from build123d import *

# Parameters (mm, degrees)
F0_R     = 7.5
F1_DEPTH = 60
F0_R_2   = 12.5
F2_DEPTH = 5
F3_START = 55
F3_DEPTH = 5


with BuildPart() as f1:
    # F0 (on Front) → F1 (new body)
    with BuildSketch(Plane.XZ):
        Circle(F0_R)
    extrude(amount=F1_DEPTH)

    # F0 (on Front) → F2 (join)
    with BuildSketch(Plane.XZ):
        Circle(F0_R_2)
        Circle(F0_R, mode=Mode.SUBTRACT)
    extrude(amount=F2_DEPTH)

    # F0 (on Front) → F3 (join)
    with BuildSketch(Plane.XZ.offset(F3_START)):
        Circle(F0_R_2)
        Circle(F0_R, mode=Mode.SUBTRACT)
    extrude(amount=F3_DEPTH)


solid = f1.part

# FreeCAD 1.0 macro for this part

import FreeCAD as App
import Part
import Sketcher

V = App.Vector
Q = App.Units.Quantity

doc = App.newDocument("Part")
body = doc.addObject("PartDesign::Body", "Body")

sketch1 = body.newObject("Sketcher::SketchObject", "Sketch")
sketch1.AttachmentSupport = (doc.getObject("XZ_Plane"), [""])
sketch1.MapMode = "FlatFace"
sketch1.addGeometry(Part.Circle(V(0, 0, 0), V(0, 0, 1), 8), False)
sketch1.addConstraint(Sketcher.Constraint("Coincident", 0, 3, -1, 1))
sketch1.addConstraint(Sketcher.Constraint("Diameter", 0, Q("15 mm")))
pad1 = body.newObject("PartDesign::Pad", "Pad")
pad1.Profile = sketch1
pad1.Length = 60

sketch2 = body.newObject("Sketcher::SketchObject", "Sketch001")
sketch2.AttachmentSupport = (doc.getObject("XZ_Plane"), [""])
sketch2.MapMode = "FlatFace"
sketch2.addGeometry(Part.Circle(V(0, 0, 0), V(0, 0, 1), 12), False)
sketch2.addGeometry(Part.Circle(V(0, 0, 0), V(0, 0, 1), 8), False)
sketch2.addConstraint(Sketcher.Constraint("Coincident", 0, 3, -1, 1))
sketch2.addConstraint(Sketcher.Constraint("Coincident", 1, 3, -1, 1))
sketch2.addConstraint(Sketcher.Constraint("Diameter", 0, Q("25 mm")))
sketch2.addConstraint(Sketcher.Constraint("Diameter", 1, Q("15 mm")))
pad2 = body.newObject("PartDesign::Pad", "Pad001")
pad2.Profile = sketch2
pad2.Length = 5

sketch3 = body.newObject("Sketcher::SketchObject", "Sketch002")
sketch3.AttachmentSupport = (doc.getObject("XZ_Plane"), [""])
sketch3.MapMode = "FlatFace"
sketch3.AttachmentOffset = App.Placement(V(0, 0, 55), App.Rotation())
sketch3.addGeometry(Part.Circle(V(0, 0, 0), V(0, 0, 1), 12), False)
sketch3.addGeometry(Part.Circle(V(0, 0, 0), V(0, 0, 1), 8), False)
sketch3.addConstraint(Sketcher.Constraint("Coincident", 0, 3, -1, 1))
sketch3.addConstraint(Sketcher.Constraint("Coincident", 1, 3, -1, 1))
sketch3.addConstraint(Sketcher.Constraint("Diameter", 0, Q("25 mm")))
sketch3.addConstraint(Sketcher.Constraint("Diameter", 1, Q("15 mm")))
pad3 = body.newObject("PartDesign::Pad", "Pad002")
pad3.Profile = sketch3
pad3.Length = 5

doc.recompute()
